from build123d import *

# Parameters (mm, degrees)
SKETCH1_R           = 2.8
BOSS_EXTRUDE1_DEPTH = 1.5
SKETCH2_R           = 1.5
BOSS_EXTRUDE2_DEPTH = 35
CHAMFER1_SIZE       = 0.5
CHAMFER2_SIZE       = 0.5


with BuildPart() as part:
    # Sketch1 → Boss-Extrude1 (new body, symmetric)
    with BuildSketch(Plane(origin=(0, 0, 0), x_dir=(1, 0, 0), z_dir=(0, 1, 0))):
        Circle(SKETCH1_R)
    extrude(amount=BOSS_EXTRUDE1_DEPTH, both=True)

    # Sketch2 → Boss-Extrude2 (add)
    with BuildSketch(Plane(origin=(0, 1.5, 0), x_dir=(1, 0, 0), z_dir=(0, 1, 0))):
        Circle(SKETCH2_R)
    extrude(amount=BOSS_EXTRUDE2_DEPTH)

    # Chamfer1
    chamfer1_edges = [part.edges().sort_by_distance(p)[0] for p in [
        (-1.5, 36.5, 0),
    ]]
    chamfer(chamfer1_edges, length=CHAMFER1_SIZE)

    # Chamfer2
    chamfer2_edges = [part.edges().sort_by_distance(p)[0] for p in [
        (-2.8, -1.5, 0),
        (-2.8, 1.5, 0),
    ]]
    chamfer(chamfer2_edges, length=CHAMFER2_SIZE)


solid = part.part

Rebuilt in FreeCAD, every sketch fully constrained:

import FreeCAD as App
import Part
import Sketcher
from FreeCAD import Vector


def edges_at(feature, points):
    """Names of the edges that pass closest to the given points."""
    edges = feature.Shape.Edges
    near = lambda p: min(range(len(edges)), key=lambda i: edges[i].distToShape(Part.Vertex(*p))[0])
    return sorted({f"Edge{near(p) + 1}" for p in points})

doc = App.newDocument("Part")
body = doc.addObject("PartDesign::Body", "Body")

# Sketch on XZ plane
sketch1 = body.newObject("Sketcher::SketchObject", "Sketch")
sketch1.AttachmentSupport = (doc.getObject("XZ_Plane"), [""])
sketch1.MapMode = "FlatFace"
sketch1.addGeometry(Part.Circle(Vector(0, 0, 0), Vector(0, 0, 1), 2.8), False)
sketch1.addConstraint(Sketcher.Constraint("Coincident", 0, 3, -1, 1))
sketch1.addConstraint(Sketcher.Constraint("Diameter", 0, 5.6))
pad1 = body.newObject("PartDesign::Pad", "Pad")
pad1.Profile = sketch1
pad1.Length = 3
pad1.Midplane = True

# Sketch on XZ plane
sketch2 = body.newObject("Sketcher::SketchObject", "Sketch001")
sketch2.AttachmentSupport = (doc.getObject("XZ_Plane"), [""])
sketch2.MapMode = "FlatFace"
sketch2.AttachmentOffset = App.Placement(Vector(0, 0, -1.5), App.Rotation())
sketch2.addGeometry(Part.Circle(Vector(0, 0, 0), Vector(0, 0, 1), 1.5), False)
sketch2.addConstraint(Sketcher.Constraint("Coincident", 0, 3, -1, 1))
sketch2.addConstraint(Sketcher.Constraint("Diameter", 0, 3.0))
pad2 = body.newObject("PartDesign::Pad", "Pad001")
pad2.Profile = sketch2
pad2.Length = 35
pad2.Reversed = True
doc.recompute()

chamfer = body.newObject("PartDesign::Chamfer", "Chamfer")
chamfer.Base = (pad2, edges_at(pad2, [(-1.5, 36.5, 0)]))
chamfer.Size = 0.5
doc.recompute()

chamfer2 = body.newObject("PartDesign::Chamfer", "Chamfer001")
chamfer2.Base = (chamfer, edges_at(chamfer, [(-2.8, -1.5, 0), (-2.8, 1.5, 0)]))
chamfer2.Size = 0.5

doc.recompute()
